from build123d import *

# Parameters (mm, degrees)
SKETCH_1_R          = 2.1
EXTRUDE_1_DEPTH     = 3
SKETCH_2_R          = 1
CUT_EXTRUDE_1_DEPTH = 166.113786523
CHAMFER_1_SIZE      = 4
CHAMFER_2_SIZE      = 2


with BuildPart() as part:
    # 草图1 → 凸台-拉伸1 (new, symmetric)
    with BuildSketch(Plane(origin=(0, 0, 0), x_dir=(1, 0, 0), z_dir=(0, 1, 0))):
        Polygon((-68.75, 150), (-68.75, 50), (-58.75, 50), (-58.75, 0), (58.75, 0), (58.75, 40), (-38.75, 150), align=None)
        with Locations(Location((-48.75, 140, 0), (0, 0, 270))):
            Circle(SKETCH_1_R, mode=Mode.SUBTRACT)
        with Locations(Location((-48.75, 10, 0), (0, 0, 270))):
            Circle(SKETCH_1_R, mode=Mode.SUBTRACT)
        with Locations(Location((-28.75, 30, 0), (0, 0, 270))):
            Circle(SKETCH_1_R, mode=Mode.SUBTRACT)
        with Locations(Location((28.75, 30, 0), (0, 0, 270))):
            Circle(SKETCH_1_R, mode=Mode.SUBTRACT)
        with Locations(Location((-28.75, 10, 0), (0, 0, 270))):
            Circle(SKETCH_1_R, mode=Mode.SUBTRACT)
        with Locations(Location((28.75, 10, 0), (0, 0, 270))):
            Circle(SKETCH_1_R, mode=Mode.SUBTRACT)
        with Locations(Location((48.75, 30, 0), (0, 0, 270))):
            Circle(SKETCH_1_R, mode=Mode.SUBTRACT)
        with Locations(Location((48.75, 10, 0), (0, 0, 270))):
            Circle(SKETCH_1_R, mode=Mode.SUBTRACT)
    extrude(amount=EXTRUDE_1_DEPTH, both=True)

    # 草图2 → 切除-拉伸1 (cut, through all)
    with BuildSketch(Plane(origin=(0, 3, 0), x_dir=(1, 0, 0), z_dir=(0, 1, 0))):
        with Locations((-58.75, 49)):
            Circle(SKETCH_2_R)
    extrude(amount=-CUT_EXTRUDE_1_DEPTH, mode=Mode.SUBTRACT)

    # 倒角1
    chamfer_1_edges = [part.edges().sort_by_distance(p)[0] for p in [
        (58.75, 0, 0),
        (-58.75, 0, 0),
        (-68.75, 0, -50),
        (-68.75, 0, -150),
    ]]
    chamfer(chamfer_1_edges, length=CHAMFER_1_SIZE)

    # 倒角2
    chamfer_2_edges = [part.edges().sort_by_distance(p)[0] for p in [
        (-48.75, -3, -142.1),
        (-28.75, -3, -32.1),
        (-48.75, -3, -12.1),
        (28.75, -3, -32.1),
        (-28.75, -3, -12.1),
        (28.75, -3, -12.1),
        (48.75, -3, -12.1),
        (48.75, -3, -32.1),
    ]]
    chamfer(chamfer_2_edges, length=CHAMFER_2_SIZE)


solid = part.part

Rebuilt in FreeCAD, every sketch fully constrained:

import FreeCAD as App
import Part
import Sketcher

V = App.Vector


def edges_at(feature, points):
    """Names of the edges that pass closest to the given points."""
    edges = feature.Shape.Edges
    near = lambda p: min(range(len(edges)), key=lambda i: edges[i].distToShape(Part.Vertex(*p))[0])
    return sorted({f"Edge{near(p) + 1}" for p in points})

doc = App.newDocument("Part")
body = doc.addObject("PartDesign::Body", "Body")

# Sketch on XZ plane
sketch1 = body.newObject("Sketcher::SketchObject", "Sketch")
sketch1.AttachmentSupport = (doc.getObject("XZ_Plane"), [""])
sketch1.MapMode = "FlatFace"
sketch1.addGeometry([
    Part.LineSegment(V(-68.75, -150, 0), V(-68.75, -50, 0)),  # 0
    Part.LineSegment(V(-68.75, -50, 0), V(-58.75, -50, 0)),  # 1
    Part.LineSegment(V(-58.75, -50, 0), V(-58.75, 0, 0)),  # 2
    Part.LineSegment(V(-58.75, 0, 0), V(58.75, 0, 0)),  # 3
    Part.LineSegment(V(58.75, 0, 0), V(58.75, -40, 0)),  # 4
    Part.LineSegment(V(58.75, -40, 0), V(-38.75, -150, 0)),  # 5
    Part.LineSegment(V(-38.75, -150, 0), V(-68.75, -150, 0)),  # 6
    Part.Circle(V(-48.75, -10, 0), V(0, 0, 1), 2.1),  # 7
    Part.Circle(V(-28.75, -10, 0), V(0, 0, 1), 2.1),  # 8
    Part.Circle(V(-28.75, -30, 0), V(0, 0, 1), 2.1),  # 9
    Part.Circle(V(28.75, -10, 0), V(0, 0, 1), 2.1),  # 10
    Part.Circle(V(48.75, -10, 0), V(0, 0, 1), 2.1),  # 11
    Part.Circle(V(28.75, -30, 0), V(0, 0, 1), 2.1),  # 12
    Part.Circle(V(48.75, -30, 0), V(0, 0, 1), 2.1),  # 13
    Part.Circle(V(-48.75, -140, 0), V(0, 0, 1), 2.1),  # 14
], False)
sketch1.addConstraint([
    Sketcher.Constraint("Coincident", 0, 2, 1, 1),
    Sketcher.Constraint("Coincident", 1, 2, 2, 1),
    Sketcher.Constraint("Coincident", 2, 2, 3, 1),
    Sketcher.Constraint("Coincident", 3, 2, 4, 1),
    Sketcher.Constraint("Coincident", 4, 2, 5, 1),
    Sketcher.Constraint("Coincident", 5, 2, 6, 1),
    Sketcher.Constraint("Coincident", 6, 2, 0, 1),
    Sketcher.Constraint("Vertical", 0),
    Sketcher.Constraint("Horizontal", 1),
    Sketcher.Constraint("Vertical", 2),
    Sketcher.Constraint("Horizontal", 3),
    Sketcher.Constraint("Vertical", 4),
    Sketcher.Constraint("Horizontal", 6),
    Sketcher.Constraint("Equal", 7, 8),
    Sketcher.Constraint("Equal", 8, 9),
    Sketcher.Constraint("Equal", 9, 10),
    Sketcher.Constraint("Equal", 10, 11),
    Sketcher.Constraint("Equal", 11, 12),
    Sketcher.Constraint("Equal", 12, 13),
    Sketcher.Constraint("Equal", 13, 14),
    Sketcher.Constraint("Symmetric", 2, 2, 3, 2, -1, 1),
    Sketcher.Constraint("Symmetric", 8, 3, 10, 3, -2),
    Sketcher.Constraint("Symmetric", 7, 3, 11, 3, -2),
    Sketcher.Constraint("Symmetric", 9, 3, 12, 3, -2),
    Sketcher.Constraint("Horizontal", 7, 3, 8, 3),
    Sketcher.Constraint("Horizontal", 12, 3, 13, 3),
    Sketcher.Constraint("Vertical", 8, 3, 9, 3),
    Sketcher.Constraint("Vertical", 11, 3, 13, 3),
    Sketcher.Constraint("Vertical", 7, 3, 14, 3),
    Sketcher.Constraint("Diameter", 7, 4.2),
    Sketcher.Constraint("DistanceX", 1, 1, 1, 2, 10.0),
    Sketcher.Constraint("DistanceX", 6, 2, 6, 1, 30.0),
    Sketcher.Constraint("DistanceY", 0, 1, 0, 2, 100.0),
    Sketcher.Constraint("DistanceY", 2, 1, 2, 2, 50.0),
    Sketcher.Constraint("DistanceY", 4, 2, 4, 1, 40.0),
    Sketcher.Constraint("DistanceX", 3, 1, 3, 2, 117.5),
    Sketcher.Constraint("DistanceY", 7, 3, -1, 1, 10.0),
    Sketcher.Constraint("DistanceY", 9, 3, -1, 1, 30.0),
    Sketcher.Constraint("DistanceY", 14, 3, -1, 1, 140.0),
    Sketcher.Constraint("DistanceX", 7, 3, 8, 3, 20.0),
    Sketcher.Constraint("DistanceX", 0, 2, 7, 3, 20.0),
])
pad1 = body.newObject("PartDesign::Pad", "Pad")
pad1.Profile = sketch1
pad1.Length = 6
pad1.Midplane = True

# Sketch on XZ plane
sketch2 = body.newObject("Sketcher::SketchObject", "Sketch001")
sketch2.AttachmentSupport = (doc.getObject("XZ_Plane"), [""])
sketch2.MapMode = "FlatFace"
sketch2.AttachmentOffset = App.Placement(V(0, 0, -3), App.Rotation())
sketch2.addGeometry(Part.Circle(V(-58.75, -49, 0), V(0, 0, 1), 1), False)
sketch2.addConstraint([
    Sketcher.Constraint("Diameter", 0, 2.0),
    Sketcher.Constraint("DistanceY", 0, 3, -1, 1, 49.0),
    Sketcher.Constraint("DistanceX", 0, 3, -1, 1, 58.75),
])
pocket1 = body.newObject("PartDesign::Pocket", "Pocket")
pocket1.Profile = sketch2
pocket1.Type = "ThroughAll"
pocket1.Reversed = True
doc.recompute()

chamfer = body.newObject("PartDesign::Chamfer", "Chamfer")
chamfer.Base = (pocket1, edges_at(pocket1, [
    (58.75, 0, 0),
    (-58.75, 0, 0),
    (-68.75, 0, -50),
    (-68.75, 0, -150),
]))
chamfer.Size = 4
doc.recompute()

chamfer2 = body.newObject("PartDesign::Chamfer", "Chamfer001")
chamfer2.Base = (chamfer, edges_at(chamfer, [
    (-48.75, -3, -142.1),
    (-28.75, -3, -32.1),
    (-48.75, -3, -12.1),
    (28.75, -3, -32.1),
    (-28.75, -3, -12.1),
    (28.75, -3, -12.1),
    (48.75, -3, -12.1),
    (48.75, -3, -32.1),
]))
chamfer2.Size = 2

doc.recompute()
